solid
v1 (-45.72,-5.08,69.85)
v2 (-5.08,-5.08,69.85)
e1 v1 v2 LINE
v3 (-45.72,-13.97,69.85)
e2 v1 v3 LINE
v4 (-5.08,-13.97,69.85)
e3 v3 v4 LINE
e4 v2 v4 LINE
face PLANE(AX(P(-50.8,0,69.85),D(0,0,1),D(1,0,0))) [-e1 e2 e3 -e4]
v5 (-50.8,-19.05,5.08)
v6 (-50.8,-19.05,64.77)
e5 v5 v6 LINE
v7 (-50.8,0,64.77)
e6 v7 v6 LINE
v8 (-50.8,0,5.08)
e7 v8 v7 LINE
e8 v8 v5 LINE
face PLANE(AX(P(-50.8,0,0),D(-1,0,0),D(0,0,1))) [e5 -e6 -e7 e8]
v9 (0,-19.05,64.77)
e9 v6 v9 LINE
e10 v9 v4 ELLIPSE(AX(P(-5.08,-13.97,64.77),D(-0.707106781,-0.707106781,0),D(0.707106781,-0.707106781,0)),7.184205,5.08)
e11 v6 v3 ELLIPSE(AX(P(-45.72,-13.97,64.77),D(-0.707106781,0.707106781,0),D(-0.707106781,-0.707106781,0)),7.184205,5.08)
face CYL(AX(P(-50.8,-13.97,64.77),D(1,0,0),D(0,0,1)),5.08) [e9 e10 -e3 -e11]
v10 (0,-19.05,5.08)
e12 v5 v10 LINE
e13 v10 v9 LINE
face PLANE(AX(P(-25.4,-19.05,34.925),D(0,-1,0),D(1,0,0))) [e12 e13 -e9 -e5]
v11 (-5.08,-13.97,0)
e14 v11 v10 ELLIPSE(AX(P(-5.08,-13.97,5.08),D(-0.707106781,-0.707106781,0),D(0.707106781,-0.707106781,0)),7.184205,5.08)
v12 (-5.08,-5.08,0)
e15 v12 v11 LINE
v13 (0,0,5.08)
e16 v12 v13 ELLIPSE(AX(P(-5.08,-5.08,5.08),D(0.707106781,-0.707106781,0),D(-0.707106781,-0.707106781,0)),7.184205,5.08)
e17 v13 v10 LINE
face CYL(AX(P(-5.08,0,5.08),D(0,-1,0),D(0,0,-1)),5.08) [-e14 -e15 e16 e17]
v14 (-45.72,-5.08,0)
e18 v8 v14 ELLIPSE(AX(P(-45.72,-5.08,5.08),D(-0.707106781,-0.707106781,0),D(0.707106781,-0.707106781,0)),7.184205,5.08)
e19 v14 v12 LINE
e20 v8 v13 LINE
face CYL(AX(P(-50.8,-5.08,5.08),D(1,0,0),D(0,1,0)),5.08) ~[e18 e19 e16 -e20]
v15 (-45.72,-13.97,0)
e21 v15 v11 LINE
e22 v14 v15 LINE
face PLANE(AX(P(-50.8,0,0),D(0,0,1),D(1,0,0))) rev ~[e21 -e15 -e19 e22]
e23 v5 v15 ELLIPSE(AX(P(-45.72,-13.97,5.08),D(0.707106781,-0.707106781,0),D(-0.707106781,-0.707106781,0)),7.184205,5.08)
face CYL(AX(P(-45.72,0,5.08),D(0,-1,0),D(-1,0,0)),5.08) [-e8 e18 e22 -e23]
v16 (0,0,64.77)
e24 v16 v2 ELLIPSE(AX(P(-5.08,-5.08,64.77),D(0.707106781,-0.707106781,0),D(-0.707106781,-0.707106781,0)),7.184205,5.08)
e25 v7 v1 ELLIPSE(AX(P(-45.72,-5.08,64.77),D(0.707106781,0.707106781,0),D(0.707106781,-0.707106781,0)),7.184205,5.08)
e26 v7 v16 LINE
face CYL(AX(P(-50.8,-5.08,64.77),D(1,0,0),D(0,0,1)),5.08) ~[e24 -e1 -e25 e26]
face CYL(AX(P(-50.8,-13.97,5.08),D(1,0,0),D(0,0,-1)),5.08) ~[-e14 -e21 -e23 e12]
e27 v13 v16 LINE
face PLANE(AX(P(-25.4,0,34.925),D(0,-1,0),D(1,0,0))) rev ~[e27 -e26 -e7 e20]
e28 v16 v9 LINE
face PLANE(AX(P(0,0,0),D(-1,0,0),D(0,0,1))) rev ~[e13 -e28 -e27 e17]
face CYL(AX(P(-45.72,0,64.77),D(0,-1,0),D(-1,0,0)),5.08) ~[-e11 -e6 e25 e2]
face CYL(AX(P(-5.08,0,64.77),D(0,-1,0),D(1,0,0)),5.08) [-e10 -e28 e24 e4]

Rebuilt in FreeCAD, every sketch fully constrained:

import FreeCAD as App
import Part
import Sketcher
from FreeCAD import Vector
Q = App.Units.Quantity


def edges_at(feature, points):
    """Names of the edges that pass closest to the given points."""
    edges = feature.Shape.Edges
    near = lambda p: min(range(len(edges)), key=lambda i: edges[i].distToShape(Part.Vertex(*p))[0])
    return sorted({f"Edge{near(p) + 1}" for p in points})


def add_polygon(sketch, points):
    """Adds a closed chain of lines whose ends are joined by coincident constraints."""
    first, n = sketch.GeometryCount, len(points)
    for a, b in zip(points, points[1:] + points[:1]):
        sketch.addGeometry(Part.LineSegment(App.Vector(*a, 0), App.Vector(*b, 0)), False)
    for i in range(n):
        sketch.addConstraint(Sketcher.Constraint("Coincident", first + i, 2, first + (i + 1) % n, 1))

doc = App.newDocument("Part")
body = doc.addObject("PartDesign::Body", "Body")

sketch1 = body.newObject("Sketcher::SketchObject", "Sketch")
sketch1.AttachmentSupport = (doc.getObject("XZ_Plane"), [""])
sketch1.MapMode = "FlatFace"
add_polygon(sketch1, [(-51, 70), (-51, 0), (0, 0), (0, 70)])
sketch1.addConstraint(Sketcher.Constraint("Vertical", 0))
sketch1.addConstraint(Sketcher.Constraint("Horizontal", 1))
sketch1.addConstraint(Sketcher.Constraint("Vertical", 2))
sketch1.addConstraint(Sketcher.Constraint("Horizontal", 3))
sketch1.addConstraint(Sketcher.Constraint("Coincident", 1, 2, -1, 1))
sketch1.addConstraint(Sketcher.Constraint("DistanceX", 1, 1, 1, 2, Q("2 in")))
sketch1.addConstraint(Sketcher.Constraint("DistanceY", 0, 2, 0, 1, Q("2.75 in")))
pad1 = body.newObject("PartDesign::Pad", "Pad")
pad1.Profile = sketch1
pad1.Length = Q("0.75 in")
doc.recompute()

fillet = body.newObject("PartDesign::Fillet", "Fillet")
fillet.Base = (pad1, edges_at(pad1, [
    (0, -9.525, 69.85),
    (-50.8, -9.525, 69.85),
    (-25.4, 0, 69.85),
    (-25.4, -19.05, 69.85),
]))
fillet.Radius = Q("0.2 in")
doc.recompute()

fillet2 = body.newObject("PartDesign::Fillet", "Fillet001")
fillet2.Base = (fillet, edges_at(fillet, [
    (-50.8, -9.525, 0),
    (0, -9.525, 0),
    (-25.4, 0, 0),
    (-25.4, -19.05, 0),
]))
fillet2.Radius = Q("0.2 in")

doc.recompute()
